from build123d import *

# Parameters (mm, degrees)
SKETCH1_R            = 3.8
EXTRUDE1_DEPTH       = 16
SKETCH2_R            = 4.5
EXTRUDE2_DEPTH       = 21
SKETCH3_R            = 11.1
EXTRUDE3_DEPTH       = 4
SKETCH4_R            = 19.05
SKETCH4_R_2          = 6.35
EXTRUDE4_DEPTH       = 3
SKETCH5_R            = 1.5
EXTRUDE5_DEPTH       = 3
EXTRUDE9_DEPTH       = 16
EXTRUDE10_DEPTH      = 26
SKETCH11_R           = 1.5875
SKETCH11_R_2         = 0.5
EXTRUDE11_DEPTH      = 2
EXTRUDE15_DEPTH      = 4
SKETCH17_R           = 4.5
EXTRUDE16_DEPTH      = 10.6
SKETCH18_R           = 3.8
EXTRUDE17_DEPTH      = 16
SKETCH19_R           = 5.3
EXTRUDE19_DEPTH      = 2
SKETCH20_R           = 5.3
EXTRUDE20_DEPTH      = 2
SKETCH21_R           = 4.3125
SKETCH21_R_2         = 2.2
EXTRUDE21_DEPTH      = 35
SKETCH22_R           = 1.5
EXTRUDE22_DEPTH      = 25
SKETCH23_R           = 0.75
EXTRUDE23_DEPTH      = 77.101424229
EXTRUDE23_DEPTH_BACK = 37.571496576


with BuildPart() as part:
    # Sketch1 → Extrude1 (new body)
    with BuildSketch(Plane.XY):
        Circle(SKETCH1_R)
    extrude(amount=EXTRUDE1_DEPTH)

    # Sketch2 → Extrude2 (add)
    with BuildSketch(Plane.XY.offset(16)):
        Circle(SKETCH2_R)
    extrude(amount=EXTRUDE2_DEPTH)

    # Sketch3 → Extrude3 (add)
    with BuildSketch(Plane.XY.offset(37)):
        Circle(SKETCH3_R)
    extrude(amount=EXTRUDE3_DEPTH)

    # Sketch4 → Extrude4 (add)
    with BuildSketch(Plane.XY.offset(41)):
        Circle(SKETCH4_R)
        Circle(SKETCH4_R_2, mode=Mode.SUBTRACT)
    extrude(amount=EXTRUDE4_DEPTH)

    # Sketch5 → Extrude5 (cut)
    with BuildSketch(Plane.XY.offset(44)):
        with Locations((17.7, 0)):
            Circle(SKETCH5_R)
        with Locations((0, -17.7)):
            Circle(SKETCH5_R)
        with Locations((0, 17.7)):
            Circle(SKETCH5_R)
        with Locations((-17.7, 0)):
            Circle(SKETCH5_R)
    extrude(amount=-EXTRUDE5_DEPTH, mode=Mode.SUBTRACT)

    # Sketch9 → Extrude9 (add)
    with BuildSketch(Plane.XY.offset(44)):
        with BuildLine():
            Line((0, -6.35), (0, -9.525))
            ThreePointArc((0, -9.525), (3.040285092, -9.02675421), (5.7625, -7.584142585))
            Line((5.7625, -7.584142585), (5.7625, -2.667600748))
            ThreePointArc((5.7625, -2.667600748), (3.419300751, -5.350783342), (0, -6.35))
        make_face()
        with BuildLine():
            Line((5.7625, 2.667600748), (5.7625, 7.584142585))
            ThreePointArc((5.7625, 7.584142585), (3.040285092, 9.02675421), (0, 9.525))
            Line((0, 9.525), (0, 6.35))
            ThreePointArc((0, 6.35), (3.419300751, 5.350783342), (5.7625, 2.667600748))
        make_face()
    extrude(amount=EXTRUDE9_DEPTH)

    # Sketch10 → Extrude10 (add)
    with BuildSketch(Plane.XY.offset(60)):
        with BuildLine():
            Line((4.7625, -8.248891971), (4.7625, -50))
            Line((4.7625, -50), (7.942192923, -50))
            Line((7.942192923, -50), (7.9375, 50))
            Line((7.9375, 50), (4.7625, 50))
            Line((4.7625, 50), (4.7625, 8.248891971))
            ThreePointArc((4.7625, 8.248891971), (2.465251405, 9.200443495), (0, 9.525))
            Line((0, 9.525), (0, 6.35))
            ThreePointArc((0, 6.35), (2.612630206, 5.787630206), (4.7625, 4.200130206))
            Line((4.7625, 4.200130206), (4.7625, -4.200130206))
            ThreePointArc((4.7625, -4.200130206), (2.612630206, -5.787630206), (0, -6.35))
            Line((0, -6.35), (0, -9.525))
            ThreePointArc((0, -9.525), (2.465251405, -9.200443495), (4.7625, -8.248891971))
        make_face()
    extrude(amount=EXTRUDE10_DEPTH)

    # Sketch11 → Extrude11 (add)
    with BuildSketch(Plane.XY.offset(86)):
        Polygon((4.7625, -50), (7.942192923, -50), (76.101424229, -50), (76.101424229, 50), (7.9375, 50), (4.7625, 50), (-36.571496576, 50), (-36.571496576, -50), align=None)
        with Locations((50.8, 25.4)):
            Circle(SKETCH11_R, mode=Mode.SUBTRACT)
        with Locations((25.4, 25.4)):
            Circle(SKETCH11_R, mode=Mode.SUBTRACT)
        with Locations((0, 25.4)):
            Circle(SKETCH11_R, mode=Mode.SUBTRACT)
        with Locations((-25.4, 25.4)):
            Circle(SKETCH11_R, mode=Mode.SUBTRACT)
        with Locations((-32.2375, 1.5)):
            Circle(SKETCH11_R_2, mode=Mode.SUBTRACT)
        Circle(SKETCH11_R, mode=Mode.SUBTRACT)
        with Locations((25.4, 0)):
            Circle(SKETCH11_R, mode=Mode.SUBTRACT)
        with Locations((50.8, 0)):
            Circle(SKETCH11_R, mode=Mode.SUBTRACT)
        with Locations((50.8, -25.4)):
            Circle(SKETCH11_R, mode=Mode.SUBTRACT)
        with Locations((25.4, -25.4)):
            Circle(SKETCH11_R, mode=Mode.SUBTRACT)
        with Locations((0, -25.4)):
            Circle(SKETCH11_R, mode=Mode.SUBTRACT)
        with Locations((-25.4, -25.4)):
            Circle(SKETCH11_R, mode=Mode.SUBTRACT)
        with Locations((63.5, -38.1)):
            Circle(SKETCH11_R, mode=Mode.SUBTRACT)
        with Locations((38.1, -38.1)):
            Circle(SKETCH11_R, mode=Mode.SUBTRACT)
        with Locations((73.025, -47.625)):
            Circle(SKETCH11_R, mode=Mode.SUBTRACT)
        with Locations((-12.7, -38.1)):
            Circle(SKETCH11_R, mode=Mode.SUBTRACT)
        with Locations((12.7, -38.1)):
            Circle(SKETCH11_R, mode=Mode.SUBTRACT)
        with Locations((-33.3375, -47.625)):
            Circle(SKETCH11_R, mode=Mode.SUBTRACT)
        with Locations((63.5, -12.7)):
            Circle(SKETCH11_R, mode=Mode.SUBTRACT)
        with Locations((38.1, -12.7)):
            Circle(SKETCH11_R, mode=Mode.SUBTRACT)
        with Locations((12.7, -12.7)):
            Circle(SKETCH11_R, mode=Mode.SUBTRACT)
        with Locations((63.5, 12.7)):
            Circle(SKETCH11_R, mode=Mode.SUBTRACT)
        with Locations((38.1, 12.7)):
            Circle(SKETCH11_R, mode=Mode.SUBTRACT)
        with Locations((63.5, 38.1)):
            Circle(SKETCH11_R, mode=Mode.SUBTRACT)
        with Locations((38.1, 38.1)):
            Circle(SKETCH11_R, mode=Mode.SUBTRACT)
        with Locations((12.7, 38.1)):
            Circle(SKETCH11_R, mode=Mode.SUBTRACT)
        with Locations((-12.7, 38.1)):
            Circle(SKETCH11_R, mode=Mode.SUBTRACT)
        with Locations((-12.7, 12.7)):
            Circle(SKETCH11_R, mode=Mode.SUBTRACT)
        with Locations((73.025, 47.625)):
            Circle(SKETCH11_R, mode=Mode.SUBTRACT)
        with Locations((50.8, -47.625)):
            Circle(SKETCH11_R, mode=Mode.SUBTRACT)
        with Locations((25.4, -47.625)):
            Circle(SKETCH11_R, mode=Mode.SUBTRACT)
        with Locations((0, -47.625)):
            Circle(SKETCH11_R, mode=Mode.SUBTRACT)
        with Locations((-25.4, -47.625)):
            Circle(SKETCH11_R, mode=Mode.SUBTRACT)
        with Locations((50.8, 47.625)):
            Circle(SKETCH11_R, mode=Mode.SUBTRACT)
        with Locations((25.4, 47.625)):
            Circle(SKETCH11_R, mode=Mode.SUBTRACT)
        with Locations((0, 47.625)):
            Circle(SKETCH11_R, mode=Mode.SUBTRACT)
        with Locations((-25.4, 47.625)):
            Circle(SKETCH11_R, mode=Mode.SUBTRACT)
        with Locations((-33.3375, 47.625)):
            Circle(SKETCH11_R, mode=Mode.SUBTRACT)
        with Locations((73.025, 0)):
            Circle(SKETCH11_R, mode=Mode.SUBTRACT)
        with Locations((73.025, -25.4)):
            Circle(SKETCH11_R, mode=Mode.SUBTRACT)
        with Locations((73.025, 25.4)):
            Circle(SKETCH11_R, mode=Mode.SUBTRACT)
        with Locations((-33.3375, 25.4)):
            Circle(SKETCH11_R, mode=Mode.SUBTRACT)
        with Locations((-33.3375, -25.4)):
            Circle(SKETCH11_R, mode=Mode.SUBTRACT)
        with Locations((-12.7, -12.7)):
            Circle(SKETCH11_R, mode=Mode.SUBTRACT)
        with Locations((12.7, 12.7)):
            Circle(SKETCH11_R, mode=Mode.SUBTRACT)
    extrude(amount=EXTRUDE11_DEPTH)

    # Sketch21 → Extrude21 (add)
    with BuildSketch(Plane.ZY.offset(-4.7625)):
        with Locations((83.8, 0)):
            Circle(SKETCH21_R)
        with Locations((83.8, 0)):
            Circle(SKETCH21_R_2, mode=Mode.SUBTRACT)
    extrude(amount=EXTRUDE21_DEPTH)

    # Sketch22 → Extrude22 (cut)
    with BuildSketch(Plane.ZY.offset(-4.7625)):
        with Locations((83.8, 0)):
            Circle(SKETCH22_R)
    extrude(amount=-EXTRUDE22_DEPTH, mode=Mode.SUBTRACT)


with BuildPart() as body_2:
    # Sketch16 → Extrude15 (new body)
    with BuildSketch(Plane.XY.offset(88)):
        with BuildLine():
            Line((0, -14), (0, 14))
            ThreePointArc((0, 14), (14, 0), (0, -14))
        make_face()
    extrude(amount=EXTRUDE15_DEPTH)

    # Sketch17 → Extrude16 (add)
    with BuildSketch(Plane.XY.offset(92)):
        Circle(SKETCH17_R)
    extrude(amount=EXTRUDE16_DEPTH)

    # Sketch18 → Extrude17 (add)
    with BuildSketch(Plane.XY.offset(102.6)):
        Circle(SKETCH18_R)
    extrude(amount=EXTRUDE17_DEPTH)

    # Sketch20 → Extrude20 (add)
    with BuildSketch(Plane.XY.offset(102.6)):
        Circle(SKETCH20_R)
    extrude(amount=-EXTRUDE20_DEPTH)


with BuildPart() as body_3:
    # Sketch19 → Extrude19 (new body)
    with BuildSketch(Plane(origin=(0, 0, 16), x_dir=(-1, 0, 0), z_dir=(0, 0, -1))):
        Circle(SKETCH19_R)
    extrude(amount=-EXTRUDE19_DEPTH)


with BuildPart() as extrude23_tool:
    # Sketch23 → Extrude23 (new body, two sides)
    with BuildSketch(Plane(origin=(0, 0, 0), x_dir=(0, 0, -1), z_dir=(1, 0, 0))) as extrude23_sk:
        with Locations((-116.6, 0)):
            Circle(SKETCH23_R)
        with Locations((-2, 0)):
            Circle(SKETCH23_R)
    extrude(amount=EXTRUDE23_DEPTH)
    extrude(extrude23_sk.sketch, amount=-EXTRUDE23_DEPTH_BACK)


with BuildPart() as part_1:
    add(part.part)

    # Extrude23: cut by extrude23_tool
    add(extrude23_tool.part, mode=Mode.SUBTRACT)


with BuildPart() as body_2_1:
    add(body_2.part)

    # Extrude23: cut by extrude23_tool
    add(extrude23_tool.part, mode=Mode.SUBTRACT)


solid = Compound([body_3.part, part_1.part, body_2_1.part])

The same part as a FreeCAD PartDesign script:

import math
import FreeCAD as App
import Part
import Sketcher
Q = App.Units.Quantity

doc = App.newDocument("Part")
params = doc.addObject("Spreadsheet::Sheet", "Params")
for row, (alias, value) in enumerate([
    ("sketch1_diameter", "7.6 mm"),
    ("pad1_length", "16 mm"),
    ("sketch2_diameter", "9 mm"),
    ("pad2_length", "21 mm"),
    ("sketch3_diameter", "22.2 mm"),
    ("pad3_length", "4 mm"),
    ("sketch4_diameter", "38.1 mm"),
    ("sketch4_diameter2", "12.7 mm"),
    ("pad4_length", "3 mm"),
    ("sketch5_diameter", "3 mm"),
    ("pocket1_length", "3 mm"),
    ("sketch6_radius", "6.35 mm"),
    ("pad5_length", "16 mm"),
    ("sketch7_radius", "6.35 mm"),
    ("sketch7_length", "100 mm"),
    ("pad6_length", "26 mm"),
    ("sketch8_diameter", "1 mm"),
    ("sketch8_height", "100 mm"),
    ("pad7_length", "2 mm"),
    ("sketch9_diameter", "4.4 mm"),
    ("pad8_length", "35 mm"),
    ("sketch10_diameter", "3 mm"),
    ("pocket2_length", "25 mm"),
    ("sketch11_radius", "14 mm"),
    ("pad9_length", "4 mm"),
    ("sketch12_diameter", "9 mm"),
    ("pad10_length", "10.6 mm"),
    ("sketch13_diameter", "7.6 mm"),
    ("pad11_length", "16 mm"),
    ("sketch14_diameter", "10.6 mm"),
    ("pad12_length", "2 mm"),
    ("sketch15_diameter", "10.6 mm"),
    ("pad13_length", "2 mm"),
    ("sketch16_diameter", "1.5 mm"),
    ("pad14_length", "77.101424 mm"),
    ("pad14_length2", "37.571497 mm"),
], start=1):
    params.set(f"A{row}", alias)
    params.set(f"B{row}", "=" + value)
    params.setAlias(f"B{row}", alias)

body = doc.addObject("PartDesign::Body", "Body")

# Sketch on XY plane
sketch1 = body.newObject("Sketcher::SketchObject", "Sketch")
sketch1.AttachmentSupport = (doc.getObject("XY_Plane"), [""])
sketch1.MapMode = "FlatFace"
sketch1.addGeometry(Part.Circle(App.Vector(0, 0, 0), App.Vector(0, 0, 1), 3.8), False)
sketch1.addConstraint(Sketcher.Constraint("Coincident", 0, 3, -1, 1))
sketch1.addConstraint(Sketcher.Constraint("Diameter", 0, Q("7.6 mm")))
sketch1.setExpression("Constraints[1]", "Params.sketch1_diameter")
pad1 = body.newObject("PartDesign::Pad", "Pad")
pad1.Profile = sketch1
pad1.setExpression("Length", "Params.pad1_length")

# Sketch on XY plane
sketch2 = body.newObject("Sketcher::SketchObject", "Sketch001")
sketch2.AttachmentSupport = (doc.getObject("XY_Plane"), [""])
sketch2.MapMode = "FlatFace"
sketch2.AttachmentOffset = App.Placement(App.Vector(0, 0, 16), App.Rotation())
sketch2.addGeometry(Part.Circle(App.Vector(0, 0, 0), App.Vector(0, 0, 1), 4.5), False)
sketch2.addConstraint(Sketcher.Constraint("Coincident", 0, 3, -1, 1))
sketch2.addConstraint(Sketcher.Constraint("Diameter", 0, Q("9 mm")))
sketch2.setExpression("Constraints[1]", "Params.sketch2_diameter")
pad2 = body.newObject("PartDesign::Pad", "Pad001")
pad2.Profile = sketch2
pad2.setExpression("Length", "Params.pad2_length")

# Sketch on XY plane
sketch3 = body.newObject("Sketcher::SketchObject", "Sketch002")
sketch3.AttachmentSupport = (doc.getObject("XY_Plane"), [""])
sketch3.MapMode = "FlatFace"
sketch3.AttachmentOffset = App.Placement(App.Vector(0, 0, 37), App.Rotation())
sketch3.addGeometry(Part.Circle(App.Vector(0, 0, 0), App.Vector(0, 0, 1), 11), False)
sketch3.addConstraint(Sketcher.Constraint("Coincident", 0, 3, -1, 1))
sketch3.addConstraint(Sketcher.Constraint("Diameter", 0, Q("22.2 mm")))
sketch3.setExpression("Constraints[1]", "Params.sketch3_diameter")
pad3 = body.newObject("PartDesign::Pad", "Pad002")
pad3.Profile = sketch3
pad3.setExpression("Length", "Params.pad3_length")

# Sketch on XY plane
sketch4 = body.newObject("Sketcher::SketchObject", "Sketch003")
sketch4.AttachmentSupport = (doc.getObject("XY_Plane"), [""])
sketch4.MapMode = "FlatFace"
sketch4.AttachmentOffset = App.Placement(App.Vector(0, 0, 41), App.Rotation())
sketch4.addGeometry(Part.Circle(App.Vector(0, 0, 0), App.Vector(0, 0, 1), 19), False)
sketch4.addGeometry(Part.Circle(App.Vector(0, 0, 0), App.Vector(0, 0, 1), 6), False)
sketch4.addConstraint(Sketcher.Constraint("Coincident", 0, 3, -1, 1))
sketch4.addConstraint(Sketcher.Constraint("Coincident", 1, 3, -1, 1))
sketch4.addConstraint(Sketcher.Constraint("Diameter", 0, Q("38.1 mm")))
sketch4.addConstraint(Sketcher.Constraint("Diameter", 1, Q("12.7 mm")))
sketch4.setExpression("Constraints[2]", "Params.sketch4_diameter")
sketch4.setExpression("Constraints[3]", "Params.sketch4_diameter2")
pad4 = body.newObject("PartDesign::Pad", "Pad003")
pad4.Profile = sketch4
pad4.setExpression("Length", "Params.pad4_length")

# Sketch on XY plane
sketch5 = body.newObject("Sketcher::SketchObject", "Sketch004")
sketch5.AttachmentSupport = (doc.getObject("XY_Plane"), [""])
sketch5.MapMode = "FlatFace"
sketch5.AttachmentOffset = App.Placement(App.Vector(0, 0, 44), App.Rotation())
sketch5.addGeometry(Part.Circle(App.Vector(17.7, 0, 0), App.Vector(0, 0, 1), 1.5), False)
sketch5.addGeometry(Part.Circle(App.Vector(0, -17.7, 0), App.Vector(0, 0, 1), 1.5), False)
sketch5.addGeometry(Part.Circle(App.Vector(0, 17.7, 0), App.Vector(0, 0, 1), 1.5), False)
sketch5.addGeometry(Part.Circle(App.Vector(-17.7, 0, 0), App.Vector(0, 0, 1), 1.5), False)
sketch5.addConstraint(Sketcher.Constraint("Equal", 0, 1))
sketch5.addConstraint(Sketcher.Constraint("Equal", 1, 2))
sketch5.addConstraint(Sketcher.Constraint("Equal", 2, 3))
sketch5.addConstraint(Sketcher.Constraint("Symmetric", 1, 3, 2, 3, -1, 1))
sketch5.addConstraint(Sketcher.Constraint("Symmetric", 0, 3, 3, 3, -1, 1))
sketch5.addConstraint(Sketcher.Constraint("PointOnObject", 0, 3, -1))
sketch5.addConstraint(Sketcher.Constraint("PointOnObject", 1, 3, -2))
sketch5.addConstraint(Sketcher.Constraint("Diameter", 0, Q("3 mm")))
sketch5.addConstraint(Sketcher.Constraint("DistanceX", -1, 1, 0, 3, Q("17.7 mm")))
sketch5.addConstraint(Sketcher.Constraint("DistanceY", 1, 3, -1, 1, Q("17.7 mm")))
sketch5.setExpression("Constraints[7]", "Params.sketch5_diameter")
pocket1 = body.newObject("PartDesign::Pocket", "Pocket")
pocket1.Profile = sketch5
pocket1.setExpression("Length", "Params.pocket1_length")

# Sketch on XY plane
sketch6 = body.newObject("Sketcher::SketchObject", "Sketch005")
sketch6.AttachmentSupport = (doc.getObject("XY_Plane"), [""])
sketch6.MapMode = "FlatFace"
sketch6.AttachmentOffset = App.Placement(App.Vector(0, 0, 44), App.Rotation())
sketch6.addGeometry(Part.LineSegment(App.Vector(0, -6.3, 0), App.Vector(0, -9.5, 0)), False)
sketch6.addGeometry(Part.ArcOfCircle(Part.Circle(App.Vector(0, 0, 0), App.Vector(0, 0, 1), 9.5), math.radians(-90), math.radians(-53)), False)
sketch6.addGeometry(Part.LineSegment(App.Vector(5.8, -7.6, 0), App.Vector(5.8, -2.7, 0)), False)
sketch6.addGeometry(Part.ArcOfCircle(Part.Circle(App.Vector(0, 0, 0), App.Vector(0, 0, 1), 6.4), math.radians(-90), math.radians(-25)), False)
sketch6.addGeometry(Part.LineSegment(App.Vector(5.8, 2.7, 0), App.Vector(5.8, 7.6, 0)), False)
sketch6.addGeometry(Part.ArcOfCircle(Part.Circle(App.Vector(0, 0, 0), App.Vector(0, 0, 1), 9.5), math.radians(53), math.radians(90)), False)
sketch6.addGeometry(Part.LineSegment(App.Vector(0, 9.5, 0), App.Vector(0, 6.3, 0)), False)
sketch6.addGeometry(Part.ArcOfCircle(Part.Circle(App.Vector(0, 0, 0), App.Vector(0, 0, 1), 6.4), math.radians(25), math.radians(90)), False)
sketch6.addConstraint(Sketcher.Constraint("Coincident", 0, 2, 1, 1))
sketch6.addConstraint(Sketcher.Constraint("Coincident", 1, 2, 2, 1))
sketch6.addConstraint(Sketcher.Constraint("Coincident", 2, 2, 3, 2))
sketch6.addConstraint(Sketcher.Constraint("Coincident", 3, 1, 0, 1))
sketch6.addConstraint(Sketcher.Constraint("Coincident", 4, 2, 5, 1))
sketch6.addConstraint(Sketcher.Constraint("Coincident", 5, 2, 6, 1))
sketch6.addConstraint(Sketcher.Constraint("Coincident", 6, 2, 7, 2))
sketch6.addConstraint(Sketcher.Constraint("Coincident", 7, 1, 4, 1))
sketch6.addConstraint(Sketcher.Constraint("Vertical", 0))
sketch6.addConstraint(Sketcher.Constraint("Vertical", 2))
sketch6.addConstraint(Sketcher.Constraint("Vertical", 4))
sketch6.addConstraint(Sketcher.Constraint("Vertical", 6))
sketch6.addConstraint(Sketcher.Constraint("Coincident", 1, 3, -1, 1))
sketch6.addConstraint(Sketcher.Constraint("Coincident", 3, 3, -1, 1))
sketch6.addConstraint(Sketcher.Constraint("Coincident", 5, 3, -1, 1))
sketch6.addConstraint(Sketcher.Constraint("Coincident", 7, 3, -1, 1))
sketch6.addConstraint(Sketcher.Constraint("Equal", 1, 5))
sketch6.addConstraint(Sketcher.Constraint("Equal", 3, 7))
sketch6.addConstraint(Sketcher.Constraint("PointOnObject", 0, 2, -2))
sketch6.addConstraint(Sketcher.Constraint("PointOnObject", 5, 2, -2))
sketch6.addConstraint(Sketcher.Constraint("Vertical", 2, 2, 4, 2))
sketch6.addConstraint(Sketcher.Constraint("Radius", 3, Q("6.35 mm")))
sketch6.addConstraint(Sketcher.Constraint("Radius", 1, Q("9.525 mm")))
sketch6.addConstraint(Sketcher.Constraint("DistanceY", 2, 1, 2, 2, Q("4.916542 mm")))
sketch6.setExpression("Constraints[21]", "Params.sketch6_radius")
pad5 = body.newObject("PartDesign::Pad", "Pad004")
pad5.Profile = sketch6
pad5.setExpression("Length", "Params.pad5_length")

# Sketch on XY plane
sketch7 = body.newObject("Sketcher::SketchObject", "Sketch006")
sketch7.AttachmentSupport = (doc.getObject("XY_Plane"), [""])
sketch7.MapMode = "FlatFace"
sketch7.AttachmentOffset = App.Placement(App.Vector(0, 0, 60), App.Rotation())
sketch7.addGeometry(Part.LineSegment(App.Vector(4.8, -8.2, 0), App.Vector(4.8, -50, 0)), False)
sketch7.addGeometry(Part.LineSegment(App.Vector(4.8, -50, 0), App.Vector(7.9, -50, 0)), False)
sketch7.addGeometry(Part.LineSegment(App.Vector(7.9, -50, 0), App.Vector(7.9, 50, 0)), False)
sketch7.addGeometry(Part.LineSegment(App.Vector(7.9, 50, 0), App.Vector(4.8, 50, 0)), False)
sketch7.addGeometry(Part.LineSegment(App.Vector(4.8, 50, 0), App.Vector(4.8, 8.2, 0)), False)
sketch7.addGeometry(Part.ArcOfCircle(Part.Circle(App.Vector(0, 0, 0), App.Vector(0, 0, 1), 9.5), math.radians(60), math.radians(90)), False)
sketch7.addGeometry(Part.LineSegment(App.Vector(0, 9.5, 0), App.Vector(0, 6.3, 0)), False)
sketch7.addGeometry(Part.ArcOfCircle(Part.Circle(App.Vector(0, 0, 0), App.Vector(0, 0, 1), 6.4), math.radians(41), math.radians(90)), False)
sketch7.addGeometry(Part.LineSegment(App.Vector(4.8, 4.2, 0), App.Vector(4.8, -4.2, 0)), False)
sketch7.addGeometry(Part.ArcOfCircle(Part.Circle(App.Vector(0, 0, 0), App.Vector(0, 0, 1), 6.4), math.radians(-90), math.radians(-41)), False)
sketch7.addGeometry(Part.LineSegment(App.Vector(0, -6.3, 0), App.Vector(0, -9.5, 0)), False)
sketch7.addGeometry(Part.ArcOfCircle(Part.Circle(App.Vector(0, 0, 0), App.Vector(0, 0, 1), 9.5), math.radians(-90), math.radians(-60)), False)
sketch7.addConstraint(Sketcher.Constraint("Coincident", 0, 2, 1, 1))
sketch7.addConstraint(Sketcher.Constraint("Coincident", 1, 2, 2, 1))
sketch7.addConstraint(Sketcher.Constraint("Coincident", 2, 2, 3, 1))
sketch7.addConstraint(Sketcher.Constraint("Coincident", 3, 2, 4, 1))
sketch7.addConstraint(Sketcher.Constraint("Coincident", 4, 2, 5, 1))
sketch7.addConstraint(Sketcher.Constraint("Coincident", 5, 2, 6, 1))
sketch7.addConstraint(Sketcher.Constraint("Coincident", 6, 2, 7, 2))
sketch7.addConstraint(Sketcher.Constraint("Coincident", 7, 1, 8, 1))
sketch7.addConstraint(Sketcher.Constraint("Coincident", 8, 2, 9, 2))
sketch7.addConstraint(Sketcher.Constraint("Coincident", 9, 1, 10, 1))
sketch7.addConstraint(Sketcher.Constraint("Coincident", 10, 2, 11, 1))
sketch7.addConstraint(Sketcher.Constraint("Coincident", 11, 2, 0, 1))
sketch7.addConstraint(Sketcher.Constraint("Vertical", 0))
sketch7.addConstraint(Sketcher.Constraint("Horizontal", 1))
sketch7.addConstraint(Sketcher.Constraint("Horizontal", 3))
sketch7.addConstraint(Sketcher.Constraint("Vertical", 4))
sketch7.addConstraint(Sketcher.Constraint("Vertical", 6))
sketch7.addConstraint(Sketcher.Constraint("Vertical", 8))
sketch7.addConstraint(Sketcher.Constraint("Vertical", 10))
sketch7.addConstraint(Sketcher.Constraint("Coincident", 5, 3, -1, 1))
sketch7.addConstraint(Sketcher.Constraint("Coincident", 7, 3, -1, 1))
sketch7.addConstraint(Sketcher.Constraint("Coincident", 9, 3, -1, 1))
sketch7.addConstraint(Sketcher.Constraint("Coincident", 11, 3, -1, 1))
sketch7.addConstraint(Sketcher.Constraint("Equal", 7, 9))
sketch7.addConstraint(Sketcher.Constraint("Equal", 5, 11))
sketch7.addConstraint(Sketcher.Constraint("Symmetric", 0, 2, 3, 2, -1))
sketch7.addConstraint(Sketcher.Constraint("PointOnObject", 5, 2, -2))
sketch7.addConstraint(Sketcher.Constraint("PointOnObject", 9, 1, -2))
sketch7.addConstraint(Sketcher.Constraint("Vertical", 4, 2, 7, 1))
sketch7.addConstraint(Sketcher.Constraint("Equal", 3, 6))
sketch7.addConstraint(Sketcher.Constraint("Radius", 7, Q("6.35 mm")))
sketch7.addConstraint(Sketcher.Constraint("Distance", 2, Q("100 mm")))
sketch7.addConstraint(Sketcher.Constraint("Radius", 5, Q("9.525 mm")))
sketch7.addConstraint(Sketcher.Constraint("DistanceY", 0, 2, 0, 1, Q("41.751108 mm")))
sketch7.addConstraint(Sketcher.Constraint("DistanceX", 1, 1, 1, 2, Q("3.179693 mm")))
sketch7.setExpression("Constraints[30]", "Params.sketch7_radius")
sketch7.setExpression("Constraints[31]", "Params.sketch7_length")
pad6 = body.newObject("PartDesign::Pad", "Pad005")
pad6.Profile = sketch7
pad6.setExpression("Length", "Params.pad6_length")

# Sketch on XY plane
sketch8 = body.newObject("Sketcher::SketchObject", "Sketch007")
sketch8.AttachmentSupport = (doc.getObject("XY_Plane"), [""])
sketch8.MapMode = "FlatFace"
sketch8.AttachmentOffset = App.Placement(App.Vector(0, 0, 86), App.Rotation())
sketch8.addGeometry(Part.LineSegment(App.Vector(76.1, -50, 0), App.Vector(76.1, 50, 0)), False)
sketch8.addGeometry(Part.LineSegment(App.Vector(76.1, 50, 0), App.Vector(-36.6, 50, 0)), False)
sketch8.addGeometry(Part.LineSegment(App.Vector(-36.6, 50, 0), App.Vector(-36.6, -50, 0)), False)
sketch8.addGeometry(Part.LineSegment(App.Vector(-36.6, -50, 0), App.Vector(76.1, -50, 0)), False)
sketch8.addGeometry(Part.Circle(App.Vector(-33.3, -47.6, 0), App.Vector(0, 0, 1), 1.6), False)
sketch8.addGeometry(Part.Circle(App.Vector(-25.4, -47.6, 0), App.Vector(0, 0, 1), 1.6), False)
sketch8.addGeometry(Part.Circle(App.Vector(-12.7, -38.1, 0), App.Vector(0, 0, 1), 1.6), False)
sketch8.addGeometry(Part.Circle(App.Vector(-33.3, -25.4, 0), App.Vector(0, 0, 1), 1.6), False)
sketch8.addGeometry(Part.Circle(App.Vector(-25.4, -25.4, 0), App.Vector(0, 0, 1), 1.6), False)
sketch8.addGeometry(Part.Circle(App.Vector(0, -47.6, 0), App.Vector(0, 0, 1), 1.6), False)
sketch8.addGeometry(Part.Circle(App.Vector(12.7, -38.1, 0), App.Vector(0, 0, 1), 1.6), False)
sketch8.addGeometry(Part.Circle(App.Vector(0, -25.4, 0), App.Vector(0, 0, 1), 1.6), False)
sketch8.addGeometry(Part.Circle(App.Vector(-12.7, -12.7, 0), App.Vector(0, 0, 1), 1.6), False)
sketch8.addGeometry(Part.Circle(App.Vector(12.7, -12.7, 0), App.Vector(0, 0, 1), 1.6), False)
sketch8.addGeometry(Part.Circle(App.Vector(25.4, -47.6, 0), App.Vector(0, 0, 1), 1.6), False)
sketch8.addGeometry(Part.Circle(App.Vector(38.1, -38.1, 0), App.Vector(0, 0, 1), 1.6), False)
sketch8.addGeometry(Part.Circle(App.Vector(25.4, -25.4, 0), App.Vector(0, 0, 1), 1.6), False)
sketch8.addGeometry(Part.Circle(App.Vector(50.8, -47.6, 0), App.Vector(0, 0, 1), 1.6), False)
sketch8.addGeometry(Part.Circle(App.Vector(73, -47.6, 0), App.Vector(0, 0, 1), 1.6), False)
sketch8.addGeometry(Part.Circle(App.Vector(63.5, -38.1, 0), App.Vector(0, 0, 1), 1.6), False)
sketch8.addGeometry(Part.Circle(App.Vector(50.8, -25.4, 0), App.Vector(0, 0, 1), 1.6), False)
sketch8.addGeometry(Part.Circle(App.Vector(73, -25.4, 0), App.Vector(0, 0, 1), 1.6), False)
sketch8.addGeometry(Part.Circle(App.Vector(38.1, -12.7, 0), App.Vector(0, 0, 1), 1.6), False)
sketch8.addGeometry(Part.Circle(App.Vector(63.5, -12.7, 0), App.Vector(0, 0, 1), 1.6), False)
sketch8.addGeometry(Part.Circle(App.Vector(-32.2, 1.5, 0), App.Vector(0, 0, 1), 0.5), False)
sketch8.addGeometry(Part.Circle(App.Vector(-12.7, 12.7, 0), App.Vector(0, 0, 1), 1.6), False)
sketch8.addGeometry(Part.Circle(App.Vector(0, 0, 0), App.Vector(0, 0, 1), 1.6), False)
sketch8.addGeometry(Part.Circle(App.Vector(12.7, 12.7, 0), App.Vector(0, 0, 1), 1.6), False)
sketch8.addGeometry(Part.Circle(App.Vector(-33.3, 25.4, 0), App.Vector(0, 0, 1), 1.6), False)
sketch8.addGeometry(Part.Circle(App.Vector(-25.4, 25.4, 0), App.Vector(0, 0, 1), 1.6), False)
sketch8.addGeometry(Part.Circle(App.Vector(-33.3, 47.6, 0), App.Vector(0, 0, 1), 1.6), False)
sketch8.addGeometry(Part.Circle(App.Vector(-25.4, 47.6, 0), App.Vector(0, 0, 1), 1.6), False)
sketch8.addGeometry(Part.Circle(App.Vector(-12.7, 38.1, 0), App.Vector(0, 0, 1), 1.6), False)
sketch8.addGeometry(Part.Circle(App.Vector(0, 25.4, 0), App.Vector(0, 0, 1), 1.6), False)
sketch8.addGeometry(Part.Circle(App.Vector(0, 47.6, 0), App.Vector(0, 0, 1), 1.6), False)
sketch8.addGeometry(Part.Circle(App.Vector(12.7, 38.1, 0), App.Vector(0, 0, 1), 1.6), False)
sketch8.addGeometry(Part.Circle(App.Vector(25.4, 0, 0), App.Vector(0, 0, 1), 1.6), False)
sketch8.addGeometry(Part.Circle(App.Vector(38.1, 12.7, 0), App.Vector(0, 0, 1), 1.6), False)
sketch8.addGeometry(Part.Circle(App.Vector(50.8, 0, 0), App.Vector(0, 0, 1), 1.6), False)
sketch8.addGeometry(Part.Circle(App.Vector(73, 0, 0), App.Vector(0, 0, 1), 1.6), False)
sketch8.addGeometry(Part.Circle(App.Vector(63.5, 12.7, 0), App.Vector(0, 0, 1), 1.6), False)
sketch8.addGeometry(Part.Circle(App.Vector(25.4, 25.4, 0), App.Vector(0, 0, 1), 1.6), False)
sketch8.addGeometry(Part.Circle(App.Vector(25.4, 47.6, 0), App.Vector(0, 0, 1), 1.6), False)
sketch8.addGeometry(Part.Circle(App.Vector(38.1, 38.1, 0), App.Vector(0, 0, 1), 1.6), False)
sketch8.addGeometry(Part.Circle(App.Vector(50.8, 25.4, 0), App.Vector(0, 0, 1), 1.6), False)
sketch8.addGeometry(Part.Circle(App.Vector(73, 25.4, 0), App.Vector(0, 0, 1), 1.6), False)
sketch8.addGeometry(Part.Circle(App.Vector(50.8, 47.6, 0), App.Vector(0, 0, 1), 1.6), False)
sketch8.addGeometry(Part.Circle(App.Vector(63.5, 38.1, 0), App.Vector(0, 0, 1), 1.6), False)
sketch8.addGeometry(Part.Circle(App.Vector(73, 47.6, 0), App.Vector(0, 0, 1), 1.6), False)
sketch8.addConstraint(Sketcher.Constraint("Coincident", 0, 2, 1, 1))
sketch8.addConstraint(Sketcher.Constraint("Coincident", 1, 2, 2, 1))
sketch8.addConstraint(Sketcher.Constraint("Coincident", 2, 2, 3, 1))
sketch8.addConstraint(Sketcher.Constraint("Coincident", 3, 2, 0, 1))
sketch8.addConstraint(Sketcher.Constraint("Vertical", 0))
sketch8.addConstraint(Sketcher.Constraint("Horizontal", 1))
sketch8.addConstraint(Sketcher.Constraint("Vertical", 2))
sketch8.addConstraint(Sketcher.Constraint("Horizontal", 3))
sketch8.addConstraint(Sketcher.Constraint("Coincident", 26, 3, -1, 1))
sketch8.addConstraint(Sketcher.Constraint("Equal", 4, 5))
sketch8.addConstraint(Sketcher.Constraint("Equal", 5, 6))
sketch8.addConstraint(Sketcher.Constraint("Equal", 6, 7))
sketch8.addConstraint(Sketcher.Constraint("Equal", 7, 8))
sketch8.addConstraint(Sketcher.Constraint("Equal", 8, 9))
sketch8.addConstraint(Sketcher.Constraint("Equal", 9, 10))
sketch8.addConstraint(Sketcher.Constraint("Equal", 10, 11))
sketch8.addConstraint(Sketcher.Constraint("Equal", 11, 12))
sketch8.addConstraint(Sketcher.Constraint("Equal", 12, 13))
sketch8.addConstraint(Sketcher.Constraint("Equal", 13, 14))
sketch8.addConstraint(Sketcher.Constraint("Equal", 14, 15))
sketch8.addConstraint(Sketcher.Constraint("Equal", 15, 16))
sketch8.addConstraint(Sketcher.Constraint("Equal", 16, 17))
sketch8.addConstraint(Sketcher.Constraint("Equal", 17, 18))
sketch8.addConstraint(Sketcher.Constraint("Equal", 18, 19))
sketch8.addConstraint(Sketcher.Constraint("Equal", 19, 20))
sketch8.addConstraint(Sketcher.Constraint("Equal", 20, 21))
sketch8.addConstraint(Sketcher.Constraint("Equal", 21, 22))
sketch8.addConstraint(Sketcher.Constraint("Equal", 22, 23))
sketch8.addConstraint(Sketcher.Constraint("Equal", 23, 25))
sketch8.addConstraint(Sketcher.Constraint("Equal", 25, 26))
sketch8.addConstraint(Sketcher.Constraint("Equal", 26, 27))
sketch8.addConstraint(Sketcher.Constraint("Equal", 27, 28))
sketch8.addConstraint(Sketcher.Constraint("Equal", 28, 29))
sketch8.addConstraint(Sketcher.Constraint("Equal", 29, 30))
sketch8.addConstraint(Sketcher.Constraint("Equal", 30, 31))
sketch8.addConstraint(Sketcher.Constraint("Equal", 31, 32))
sketch8.addConstraint(Sketcher.Constraint("Equal", 32, 33))
sketch8.addConstraint(Sketcher.Constraint("Equal", 33, 34))
sketch8.addConstraint(Sketcher.Constraint("Equal", 34, 35))
sketch8.addConstraint(Sketcher.Constraint("Equal", 35, 36))
sketch8.addConstraint(Sketcher.Constraint("Equal", 36, 37))
sketch8.addConstraint(Sketcher.Constraint("Equal", 37, 38))
sketch8.addConstraint(Sketcher.Constraint("Equal", 38, 39))
sketch8.addConstraint(Sketcher.Constraint("Equal", 39, 40))
sketch8.addConstraint(Sketcher.Constraint("Equal", 40, 41))
sketch8.addConstraint(Sketcher.Constraint("Equal", 41, 42))
sketch8.addConstraint(Sketcher.Constraint("Equal", 42, 43))
sketch8.addConstraint(Sketcher.Constraint("Equal", 43, 44))
sketch8.addConstraint(Sketcher.Constraint("Equal", 44, 45))
sketch8.addConstraint(Sketcher.Constraint("Equal", 45, 46))
sketch8.addConstraint(Sketcher.Constraint("Equal", 46, 47))
sketch8.addConstraint(Sketcher.Constraint("Equal", 47, 48))
sketch8.addConstraint(Sketcher.Constraint("Symmetric", 13, 3, 25, 3, -1, 1))
sketch8.addConstraint(Sketcher.Constraint("Symmetric", 12, 3, 27, 3, -1, 1))
sketch8.addConstraint(Sketcher.Constraint("Symmetric", 16, 3, 29, 3, -1, 1))
sketch8.addConstraint(Sketcher.Constraint("Symmetric", 14, 3, 31, 3, -1, 1))
sketch8.addConstraint(Sketcher.Constraint("Symmetric", 10, 3, 32, 3, -1, 1))
sketch8.addConstraint(Sketcher.Constraint("Symmetric", 11, 3, 33, 3, -1, 1))
sketch8.addConstraint(Sketcher.Constraint("Symmetric", 9, 3, 34, 3, -1, 1))
sketch8.addConstraint(Sketcher.Constraint("Symmetric", 6, 3, 35, 3, -1, 1))
sketch8.addConstraint(Sketcher.Constraint("Symmetric", 8, 3, 41, 3, -1, 1))
sketch8.addConstraint(Sketcher.Constraint("Symmetric", 5, 3, 42, 3, -1, 1))
sketch8.addConstraint(Sketcher.Constraint("Symmetric", 6, 3, 10, 3, -2))
sketch8.addConstraint(Sketcher.Constraint("Symmetric", 12, 3, 13, 3, -2))
sketch8.addConstraint(Sketcher.Constraint("Symmetric", 5, 3, 14, 3, -2))
sketch8.addConstraint(Sketcher.Constraint("Symmetric", 8, 3, 16, 3, -2))
sketch8.addConstraint(Sketcher.Constraint("Symmetric", 7, 3, 28, 3, -1))
sketch8.addConstraint(Sketcher.Constraint("Symmetric", 4, 3, 30, 3, -1))
sketch8.addConstraint(Sketcher.Constraint("Symmetric", 22, 3, 37, 3, -1))
sketch8.addConstraint(Sketcher.Constraint("Symmetric", 23, 3, 40, 3, -1))
sketch8.addConstraint(Sketcher.Constraint("Symmetric", 15, 3, 43, 3, -1))
sketch8.addConstraint(Sketcher.Constraint("Symmetric", 20, 3, 44, 3, -1))
sketch8.addConstraint(Sketcher.Constraint("Symmetric", 21, 3, 45, 3, -1))
sketch8.addConstraint(Sketcher.Constraint("Symmetric", 17, 3, 46, 3, -1))
sketch8.addConstraint(Sketcher.Constraint("Symmetric", 19, 3, 47, 3, -1))
sketch8.addConstraint(Sketcher.Constraint("Symmetric", 18, 3, 48, 3, -1))
sketch8.addConstraint(Sketcher.Constraint("PointOnObject", 9, 3, -2))
sketch8.addConstraint(Sketcher.Constraint("PointOnObject", 11, 3, -2))
sketch8.addConstraint(Sketcher.Constraint("PointOnObject", 36, 3, -1))
sketch8.addConstraint(Sketcher.Constraint("PointOnObject", 38, 3, -1))
sketch8.addConstraint(Sketcher.Constraint("PointOnObject", 39, 3, -1))
sketch8.addConstraint(Sketcher.Constraint("Horizontal", 4, 3, 5, 3))
sketch8.addConstraint(Sketcher.Constraint("Horizontal", 7, 3, 8, 3))
sketch8.addConstraint(Sketcher.Constraint("Horizontal", 5, 3, 9, 3))
sketch8.addConstraint(Sketcher.Constraint("Horizontal", 8, 3, 11, 3))
sketch8.addConstraint(Sketcher.Constraint("Horizontal", 10, 3, 15, 3))
sketch8.addConstraint(Sketcher.Constraint("Horizontal", 14, 3, 17, 3))
sketch8.addConstraint(Sketcher.Constraint("Horizontal", 17, 3, 18, 3))
sketch8.addConstraint(Sketcher.Constraint("Horizontal", 15, 3, 19, 3))
sketch8.addConstraint(Sketcher.Constraint("Horizontal", 16, 3, 20, 3))
sketch8.addConstraint(Sketcher.Constraint("Horizontal", 20, 3, 21, 3))
sketch8.addConstraint(Sketcher.Constraint("Horizontal", 13, 3, 22, 3))
sketch8.addConstraint(Sketcher.Constraint("Horizontal", 22, 3, 23, 3))
sketch8.addConstraint(Sketcher.Constraint("Vertical", 4, 3, 7, 3))
sketch8.addConstraint(Sketcher.Constraint("Vertical", 5, 3, 8, 3))
sketch8.addConstraint(Sketcher.Constraint("Vertical", 6, 3, 12, 3))
sketch8.addConstraint(Sketcher.Constraint("Vertical", 17, 3, 20, 3))
sketch8.addConstraint(Sketcher.Constraint("Vertical", 18, 3, 21, 3))
sketch8.addConstraint(Sketcher.Constraint("Vertical", 15, 3, 22, 3))
sketch8.addConstraint(Sketcher.Constraint("Vertical", 19, 3, 23, 3))
sketch8.addConstraint(Sketcher.Constraint("Vertical", 16, 3, 36, 3))
sketch8.addConstraint(Sketcher.Constraint("Vertical", 20, 3, 38, 3))
sketch8.addConstraint(Sketcher.Constraint("Vertical", 21, 3, 39, 3))
sketch8.addConstraint(Sketcher.Constraint("Diameter", 24, Q("1 mm")))
sketch8.addConstraint(Sketcher.Constraint("DistanceY", 0, 1, 0, 2, Q("100 mm")))
sketch8.addConstraint(Sketcher.Constraint("Diameter", 4, Q("3.175 mm")))
sketch8.addConstraint(Sketcher.Constraint("DistanceY", -1, 1, 0, 2, Q("50 mm")))
sketch8.addConstraint(Sketcher.Constraint("DistanceX", 5, 3, -1, 1, Q("25.4 mm")))
sketch8.addConstraint(Sketcher.Constraint("DistanceX", 6, 3, -1, 1, Q("12.7 mm")))
sketch8.addConstraint(Sketcher.Constraint("DistanceY", 6, 3, -1, 1, Q("38.1 mm")))
sketch8.addConstraint(Sketcher.Constraint("DistanceY", 7, 3, -1, 1, Q("25.4 mm")))
sketch8.addConstraint(Sketcher.Constraint("DistanceY", 12, 3, -1, 1, Q("12.7 mm")))
sketch8.addConstraint(Sketcher.Constraint("DistanceX", -1, 1, 15, 3, Q("38.1 mm")))
sketch8.addConstraint(Sketcher.Constraint("DistanceX", -1, 1, 17, 3, Q("50.8 mm")))
sketch8.addConstraint(Sketcher.Constraint("DistanceX", -1, 1, 19, 3, Q("63.5 mm")))
sketch8.addConstraint(Sketcher.Constraint("DistanceY", -1, 1, 24, 3, Q("1.5 mm")))
sketch8.addConstraint(Sketcher.Constraint("DistanceX", 7, 3, 24, 3, Q("1.1 mm")))
sketch8.addConstraint(Sketcher.Constraint("DistanceY", 4, 3, -1, 1, Q("47.625 mm")))
sketch8.addConstraint(Sketcher.Constraint("DistanceX", -1, 1, 18, 3, Q("73.025 mm")))
sketch8.addConstraint(Sketcher.Constraint("DistanceX", 1, 2, 1, 1, Q("112.672921 mm")))
sketch8.addConstraint(Sketcher.Constraint("DistanceX", 4, 3, -1, 1, Q("33.3375 mm")))
sketch8.addConstraint(Sketcher.Constraint("DistanceX", -1, 1, 0, 2, Q("76.101424 mm")))
sketch8.setExpression("Constraints[103]", "Params.sketch8_diameter")
sketch8.setExpression("Constraints[104]", "Params.sketch8_height")
pad7 = body.newObject("PartDesign::Pad", "Pad006")
pad7.Profile = sketch8
pad7.setExpression("Length", "Params.pad7_length")

# Sketch on YZ plane
sketch9 = body.newObject("Sketcher::SketchObject", "Sketch008")
sketch9.AttachmentSupport = (doc.getObject("YZ_Plane"), [""])
sketch9.MapMode = "FlatFace"
sketch9.AttachmentOffset = App.Placement(App.Vector(0, 0, 4.7625), App.Rotation())
sketch9.addGeometry(Part.Circle(App.Vector(0, 83.8, 0), App.Vector(0, 0, 1), 4.3), False)
sketch9.addGeometry(Part.Circle(App.Vector(0, 83.8, 0), App.Vector(0, 0, 1), 2.2), False)
sketch9.addConstraint(Sketcher.Constraint("Coincident", 1, 3, 0, 3))
sketch9.addConstraint(Sketcher.Constraint("PointOnObject", 0, 3, -2))
sketch9.addConstraint(Sketcher.Constraint("Diameter", 1, Q("4.4 mm")))
sketch9.addConstraint(Sketcher.Constraint("Diameter", 0, Q("8.625 mm")))
sketch9.addConstraint(Sketcher.Constraint("DistanceY", -1, 1, 0, 3, Q("83.8 mm")))
sketch9.setExpression("Constraints[2]", "Params.sketch9_diameter")
pad8 = body.newObject("PartDesign::Pad", "Pad007")
pad8.Profile = sketch9
pad8.setExpression("Length", "Params.pad8_length")
pad8.Reversed = True

# Sketch on YZ plane
sketch10 = body.newObject("Sketcher::SketchObject", "Sketch009")
sketch10.AttachmentSupport = (doc.getObject("YZ_Plane"), [""])
sketch10.MapMode = "FlatFace"
sketch10.AttachmentOffset = App.Placement(App.Vector(0, 0, 4.7625), App.Rotation())
sketch10.addGeometry(Part.Circle(App.Vector(0, 83.8, 0), App.Vector(0, 0, 1), 1.5), False)
sketch10.addConstraint(Sketcher.Constraint("PointOnObject", 0, 3, -2))
sketch10.addConstraint(Sketcher.Constraint("Diameter", 0, Q("3 mm")))
sketch10.addConstraint(Sketcher.Constraint("DistanceY", -1, 1, 0, 3, Q("83.8 mm")))
sketch10.setExpression("Constraints[1]", "Params.sketch10_diameter")
pocket2 = body.newObject("PartDesign::Pocket", "Pocket001")
pocket2.Profile = sketch10
pocket2.setExpression("Length", "Params.pocket2_length")
pocket2.Reversed = True
body2 = doc.addObject("PartDesign::Body", "Body001")

# Sketch on XY plane
sketch11 = body2.newObject("Sketcher::SketchObject", "Sketch010")
sketch11.AttachmentSupport = (doc.getObject("XY_Plane001"), [""])
sketch11.MapMode = "FlatFace"
sketch11.AttachmentOffset = App.Placement(App.Vector(0, 0, 88), App.Rotation())
sketch11.addGeometry(Part.LineSegment(App.Vector(0, 14, 0), App.Vector(0, -14, 0)), False)
sketch11.addGeometry(Part.ArcOfCircle(Part.Circle(App.Vector(0, 0, 0), App.Vector(0, 0, 1), 14), math.radians(-90), math.radians(90)), False)
sketch11.addConstraint(Sketcher.Constraint("Coincident", 0, 1, 1, 2))
sketch11.addConstraint(Sketcher.Constraint("Coincident", 1, 1, 0, 2))
sketch11.addConstraint(Sketcher.Constraint("Vertical", 0))
sketch11.addConstraint(Sketcher.Constraint("Coincident", 1, 3, -1, 1))
sketch11.addConstraint(Sketcher.Constraint("PointOnObject", 0, 1, -2))
sketch11.addConstraint(Sketcher.Constraint("Radius", 1, Q("14 mm")))
sketch11.setExpression("Constraints[5]", "Params.sketch11_radius")
pad9 = body2.newObject("PartDesign::Pad", "Pad008")
pad9.Profile = sketch11
pad9.setExpression("Length", "Params.pad9_length")

# Sketch on XY plane
sketch12 = body2.newObject("Sketcher::SketchObject", "Sketch011")
sketch12.AttachmentSupport = (doc.getObject("XY_Plane001"), [""])
sketch12.MapMode = "FlatFace"
sketch12.AttachmentOffset = App.Placement(App.Vector(0, 0, 92), App.Rotation())
sketch12.addGeometry(Part.Circle(App.Vector(0, 0, 0), App.Vector(0, 0, 1), 4.5), False)
sketch12.addConstraint(Sketcher.Constraint("Coincident", 0, 3, -1, 1))
sketch12.addConstraint(Sketcher.Constraint("Diameter", 0, Q("9 mm")))
sketch12.setExpression("Constraints[1]", "Params.sketch12_diameter")
pad10 = body2.newObject("PartDesign::Pad", "Pad009")
pad10.Profile = sketch12
pad10.setExpression("Length", "Params.pad10_length")

# Sketch on XY plane
sketch13 = body2.newObject("Sketcher::SketchObject", "Sketch012")
sketch13.AttachmentSupport = (doc.getObject("XY_Plane001"), [""])
sketch13.MapMode = "FlatFace"
sketch13.AttachmentOffset = App.Placement(App.Vector(0, 0, 102.6), App.Rotation())
sketch13.addGeometry(Part.Circle(App.Vector(0, 0, 0), App.Vector(0, 0, 1), 3.8), False)
sketch13.addConstraint(Sketcher.Constraint("Coincident", 0, 3, -1, 1))
sketch13.addConstraint(Sketcher.Constraint("Diameter", 0, Q("7.6 mm")))
sketch13.setExpression("Constraints[1]", "Params.sketch13_diameter")
pad11 = body2.newObject("PartDesign::Pad", "Pad010")
pad11.Profile = sketch13
pad11.setExpression("Length", "Params.pad11_length")

# Sketch on XY plane
sketch14 = body2.newObject("Sketcher::SketchObject", "Sketch013")
sketch14.AttachmentSupport = (doc.getObject("XY_Plane001"), [""])
sketch14.MapMode = "FlatFace"
sketch14.AttachmentOffset = App.Placement(App.Vector(0, 0, 102.6), App.Rotation())
sketch14.addGeometry(Part.Circle(App.Vector(0, 0, 0), App.Vector(0, 0, 1), 5), False)
sketch14.addConstraint(Sketcher.Constraint("Coincident", 0, 3, -1, 1))
sketch14.addConstraint(Sketcher.Constraint("Diameter", 0, Q("10.6 mm")))
sketch14.setExpression("Constraints[1]", "Params.sketch14_diameter")
pad12 = body2.newObject("PartDesign::Pad", "Pad011")
pad12.Profile = sketch14
pad12.setExpression("Length", "Params.pad12_length")
pad12.Reversed = True
body3 = doc.addObject("PartDesign::Body", "Body002")

# Sketch on XY plane
sketch15 = body3.newObject("Sketcher::SketchObject", "Sketch014")
sketch15.AttachmentSupport = (doc.getObject("XY_Plane002"), [""])
sketch15.MapMode = "FlatFace"
sketch15.AttachmentOffset = App.Placement(App.Vector(0, 0, 16), App.Rotation())
sketch15.addGeometry(Part.Circle(App.Vector(0, 0, 0), App.Vector(0, 0, 1), 5), False)
sketch15.addConstraint(Sketcher.Constraint("Coincident", 0, 3, -1, 1))
sketch15.addConstraint(Sketcher.Constraint("Diameter", 0, Q("10.6 mm")))
sketch15.setExpression("Constraints[1]", "Params.sketch15_diameter")
pad13 = body3.newObject("PartDesign::Pad", "Pad012")
pad13.Profile = sketch15
pad13.setExpression("Length", "Params.pad13_length")
body4 = doc.addObject("PartDesign::Body", "Body003")
body4.AllowCompound = True

# Sketch on YZ plane
sketch16 = body4.newObject("Sketcher::SketchObject", "Sketch015")
sketch16.AttachmentSupport = (doc.getObject("YZ_Plane003"), [""])
sketch16.MapMode = "FlatFace"
sketch16.addGeometry(Part.Circle(App.Vector(0, 116.6, 0), App.Vector(0, 0, 1), 0.8), False)
sketch16.addGeometry(Part.Circle(App.Vector(0, 2, 0), App.Vector(0, 0, 1), 0.8), False)
sketch16.addConstraint(Sketcher.Constraint("Equal", 0, 1))
sketch16.addConstraint(Sketcher.Constraint("PointOnObject", 0, 3, -2))
sketch16.addConstraint(Sketcher.Constraint("PointOnObject", 1, 3, -2))
sketch16.addConstraint(Sketcher.Constraint("Diameter", 0, Q("1.5 mm")))
sketch16.addConstraint(Sketcher.Constraint("DistanceY", -1, 1, 1, 3, Q("2 mm")))
sketch16.addConstraint(Sketcher.Constraint("DistanceY", -1, 1, 0, 3, Q("116.6 mm")))
sketch16.setExpression("Constraints[3]", "Params.sketch16_diameter")
pad14 = body4.newObject("PartDesign::Pad", "Pad013")
pad14.Profile = sketch16
pad14.Type = "TwoLengths"
pad14.setExpression("Length", "Params.pad14_length")
pad14.setExpression("Length2", "Params.pad14_length2")
doc.recompute()

body5 = doc.addObject("PartDesign::Body", "Body004")
body5.BaseFeature = body4
boolean = body.newObject("PartDesign::Boolean", "Boolean")
boolean.Type = "Cut"
boolean.addObjects([body5])
doc.recompute()

boolean2 = body2.newObject("PartDesign::Boolean", "Boolean001")
boolean2.Type = "Cut"
boolean2.addObjects([body4])

doc.recompute()
